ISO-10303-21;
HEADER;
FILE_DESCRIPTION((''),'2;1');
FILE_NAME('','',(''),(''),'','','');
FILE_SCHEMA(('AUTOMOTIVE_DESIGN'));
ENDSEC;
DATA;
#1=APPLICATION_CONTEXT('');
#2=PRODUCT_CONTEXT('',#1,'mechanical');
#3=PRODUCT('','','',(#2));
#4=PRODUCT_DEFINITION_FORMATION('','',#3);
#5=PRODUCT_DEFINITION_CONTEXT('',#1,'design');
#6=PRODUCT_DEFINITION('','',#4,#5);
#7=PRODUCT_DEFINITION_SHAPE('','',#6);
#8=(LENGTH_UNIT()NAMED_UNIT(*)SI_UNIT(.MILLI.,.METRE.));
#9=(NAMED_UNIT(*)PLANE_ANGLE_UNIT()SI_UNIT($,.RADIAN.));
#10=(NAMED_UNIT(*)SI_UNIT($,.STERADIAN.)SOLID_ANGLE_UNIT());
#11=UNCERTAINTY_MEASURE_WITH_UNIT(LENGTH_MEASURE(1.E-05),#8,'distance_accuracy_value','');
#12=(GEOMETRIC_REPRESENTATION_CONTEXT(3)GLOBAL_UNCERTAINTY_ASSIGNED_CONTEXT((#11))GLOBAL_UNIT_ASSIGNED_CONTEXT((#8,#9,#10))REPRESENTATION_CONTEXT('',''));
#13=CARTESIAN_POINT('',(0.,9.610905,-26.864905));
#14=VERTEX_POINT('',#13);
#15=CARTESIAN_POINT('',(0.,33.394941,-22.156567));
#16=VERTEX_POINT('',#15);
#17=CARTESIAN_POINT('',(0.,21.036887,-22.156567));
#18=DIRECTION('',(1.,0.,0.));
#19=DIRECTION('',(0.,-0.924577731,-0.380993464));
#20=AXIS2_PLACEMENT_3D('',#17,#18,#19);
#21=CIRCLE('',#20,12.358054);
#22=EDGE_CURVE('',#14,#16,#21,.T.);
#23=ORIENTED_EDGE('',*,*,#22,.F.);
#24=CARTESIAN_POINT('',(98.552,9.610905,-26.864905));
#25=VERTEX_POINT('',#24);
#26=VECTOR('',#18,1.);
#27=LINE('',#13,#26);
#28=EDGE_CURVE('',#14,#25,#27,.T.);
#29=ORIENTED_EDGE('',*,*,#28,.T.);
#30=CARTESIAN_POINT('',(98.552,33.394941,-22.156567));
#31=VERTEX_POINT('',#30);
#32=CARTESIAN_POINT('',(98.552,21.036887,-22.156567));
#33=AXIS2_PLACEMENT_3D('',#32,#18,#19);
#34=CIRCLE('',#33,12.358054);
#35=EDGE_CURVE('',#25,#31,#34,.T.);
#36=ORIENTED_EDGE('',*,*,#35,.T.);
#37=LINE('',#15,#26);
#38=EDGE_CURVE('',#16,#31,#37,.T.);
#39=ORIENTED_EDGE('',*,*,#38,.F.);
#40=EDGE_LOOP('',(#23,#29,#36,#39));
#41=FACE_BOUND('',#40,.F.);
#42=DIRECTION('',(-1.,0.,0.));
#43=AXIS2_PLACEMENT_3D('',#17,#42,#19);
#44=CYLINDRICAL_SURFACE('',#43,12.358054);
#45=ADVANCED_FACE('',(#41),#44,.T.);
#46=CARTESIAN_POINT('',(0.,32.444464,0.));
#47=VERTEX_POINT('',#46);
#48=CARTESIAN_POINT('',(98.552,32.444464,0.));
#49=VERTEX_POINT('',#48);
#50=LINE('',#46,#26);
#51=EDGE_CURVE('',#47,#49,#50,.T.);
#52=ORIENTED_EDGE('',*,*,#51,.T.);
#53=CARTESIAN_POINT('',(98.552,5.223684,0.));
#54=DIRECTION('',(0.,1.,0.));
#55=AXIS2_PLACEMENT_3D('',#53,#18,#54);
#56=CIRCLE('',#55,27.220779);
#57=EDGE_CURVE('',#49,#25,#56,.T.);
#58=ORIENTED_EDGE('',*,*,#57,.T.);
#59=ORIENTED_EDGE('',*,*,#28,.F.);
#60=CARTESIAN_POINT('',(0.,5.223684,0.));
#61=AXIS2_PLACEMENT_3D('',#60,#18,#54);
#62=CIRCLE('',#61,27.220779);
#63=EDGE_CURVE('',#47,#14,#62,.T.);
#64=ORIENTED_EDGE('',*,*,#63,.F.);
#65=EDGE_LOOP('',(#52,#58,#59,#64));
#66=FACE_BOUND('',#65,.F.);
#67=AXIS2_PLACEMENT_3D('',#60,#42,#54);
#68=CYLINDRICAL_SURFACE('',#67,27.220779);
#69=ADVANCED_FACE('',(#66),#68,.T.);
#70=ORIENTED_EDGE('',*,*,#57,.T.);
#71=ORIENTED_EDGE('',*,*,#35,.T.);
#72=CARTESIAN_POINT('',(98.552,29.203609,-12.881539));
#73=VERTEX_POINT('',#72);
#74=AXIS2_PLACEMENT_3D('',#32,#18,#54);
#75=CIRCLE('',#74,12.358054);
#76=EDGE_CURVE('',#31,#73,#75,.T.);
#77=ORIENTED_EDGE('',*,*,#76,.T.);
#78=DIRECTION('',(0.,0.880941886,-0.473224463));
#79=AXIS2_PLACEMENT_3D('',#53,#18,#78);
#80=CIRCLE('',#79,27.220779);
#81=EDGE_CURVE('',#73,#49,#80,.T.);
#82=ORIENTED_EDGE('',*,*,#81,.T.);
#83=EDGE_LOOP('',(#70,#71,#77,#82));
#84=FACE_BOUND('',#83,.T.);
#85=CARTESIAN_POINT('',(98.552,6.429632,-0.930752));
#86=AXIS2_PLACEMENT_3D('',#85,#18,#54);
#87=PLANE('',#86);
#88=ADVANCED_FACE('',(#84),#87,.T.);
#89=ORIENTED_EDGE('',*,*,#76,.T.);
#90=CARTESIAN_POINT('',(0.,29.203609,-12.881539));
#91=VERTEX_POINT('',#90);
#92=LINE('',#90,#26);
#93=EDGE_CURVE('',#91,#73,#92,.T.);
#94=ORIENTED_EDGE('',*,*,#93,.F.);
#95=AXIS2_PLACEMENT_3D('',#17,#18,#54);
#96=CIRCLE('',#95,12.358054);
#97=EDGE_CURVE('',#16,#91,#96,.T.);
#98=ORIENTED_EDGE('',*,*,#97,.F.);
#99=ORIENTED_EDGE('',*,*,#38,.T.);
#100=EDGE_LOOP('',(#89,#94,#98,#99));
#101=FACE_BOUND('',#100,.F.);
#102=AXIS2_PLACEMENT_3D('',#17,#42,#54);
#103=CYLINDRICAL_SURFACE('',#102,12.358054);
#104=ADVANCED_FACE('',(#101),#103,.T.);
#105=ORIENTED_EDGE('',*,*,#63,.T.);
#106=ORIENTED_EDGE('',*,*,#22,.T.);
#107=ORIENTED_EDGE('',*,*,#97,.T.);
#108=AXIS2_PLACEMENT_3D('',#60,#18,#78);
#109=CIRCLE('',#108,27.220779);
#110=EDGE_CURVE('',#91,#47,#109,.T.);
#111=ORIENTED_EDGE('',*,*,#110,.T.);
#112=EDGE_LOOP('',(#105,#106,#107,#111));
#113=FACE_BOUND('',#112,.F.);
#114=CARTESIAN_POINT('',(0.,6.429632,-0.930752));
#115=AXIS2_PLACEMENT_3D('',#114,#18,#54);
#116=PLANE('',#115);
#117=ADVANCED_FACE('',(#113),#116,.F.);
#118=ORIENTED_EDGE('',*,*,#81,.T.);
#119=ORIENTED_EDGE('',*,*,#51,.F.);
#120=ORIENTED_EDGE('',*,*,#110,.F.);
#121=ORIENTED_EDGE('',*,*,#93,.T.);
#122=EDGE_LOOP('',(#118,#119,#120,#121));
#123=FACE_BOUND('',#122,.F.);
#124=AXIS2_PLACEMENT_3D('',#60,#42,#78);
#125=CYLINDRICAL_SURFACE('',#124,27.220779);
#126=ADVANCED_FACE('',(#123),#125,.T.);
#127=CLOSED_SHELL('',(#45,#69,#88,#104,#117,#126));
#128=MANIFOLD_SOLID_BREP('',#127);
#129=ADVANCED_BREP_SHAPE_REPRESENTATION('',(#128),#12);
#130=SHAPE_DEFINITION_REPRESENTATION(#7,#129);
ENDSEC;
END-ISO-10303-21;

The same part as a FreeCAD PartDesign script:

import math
import FreeCAD as App
import Part
import Sketcher
Q = App.Units.Quantity

doc = App.newDocument("Part")
params = doc.addObject("Spreadsheet::Sheet", "Params")
for row, (alias, value) in enumerate([
    ("pad1_length", "3.88 in"),
], start=1):
    params.set(f"A{row}", alias)
    params.set(f"B{row}", "=" + value)
    params.setAlias(f"B{row}", alias)

body = doc.addObject("PartDesign::Body", "Body")

# Sketch on YZ plane
sketch1 = doc.addObject("Sketcher::SketchObject", "Sketch")
body.addObject(sketch1)
sketch1.AttachmentSupport = (doc.YZ_Plane, [""])
sketch1.MapMode = "FlatFace"
sketch1.addGeometry([
    Part.ArcOfCircle(Part.Circle(App.Vector(5.223684, 0, 0), App.Vector(0, 0, 1), 27.220779), math.radians(-28.243808), math.radians(0)),
    Part.ArcOfCircle(Part.Circle(App.Vector(5.223684, 0, 0), App.Vector(0, 0, 1), 27.220779), math.radians(0), math.radians(279.274914)),
    Part.ArcOfCircle(Part.Circle(App.Vector(21.036887, -22.156567, 0), App.Vector(0, 0, 1), 12.358054), math.radians(-157.604766), math.radians(0)),
    Part.ArcOfCircle(Part.Circle(App.Vector(21.036887, -22.156567, 0), App.Vector(0, 0, 1), 12.358054), math.radians(0), math.radians(48.635873)),
], False)
sketch1.addConstraint([
    Sketcher.Constraint("Tangent", 0, 2, 1, 1),
    Sketcher.Constraint("Coincident", 1, 2, 2, 1),
    Sketcher.Constraint("Tangent", 2, 2, 3, 1),
    Sketcher.Constraint("Coincident", 3, 2, 0, 1),
    Sketcher.Constraint("Equal", 0, 1),
    Sketcher.Constraint("Equal", 2, 3),
    Sketcher.Constraint("PointOnObject", 0, 3, -1),
    Sketcher.Constraint("PointOnObject", 0, 2, -1),
    Sketcher.Constraint("Horizontal", 3, 3, 2, 2),
    Sketcher.Constraint("Radius", 0, Q("27.220779 mm")),
    Sketcher.Constraint("Radius", 2, Q("12.358054 mm")),
    Sketcher.Constraint("DistanceX", -1, 1, 2, 2, Q("33.394941 mm")),
    Sketcher.Constraint("DistanceX", -1, 1, 3, 2, Q("29.203609 mm")),
    Sketcher.Constraint("DistanceY", 3, 2, -1, 1, Q("12.881539 mm")),
])
pad1 = doc.addObject("PartDesign::Pad", "Pad")
body.addObject(pad1)
pad1.Profile = sketch1
pad1.setExpression("Length", "Params.pad1_length")

doc.recompute()
